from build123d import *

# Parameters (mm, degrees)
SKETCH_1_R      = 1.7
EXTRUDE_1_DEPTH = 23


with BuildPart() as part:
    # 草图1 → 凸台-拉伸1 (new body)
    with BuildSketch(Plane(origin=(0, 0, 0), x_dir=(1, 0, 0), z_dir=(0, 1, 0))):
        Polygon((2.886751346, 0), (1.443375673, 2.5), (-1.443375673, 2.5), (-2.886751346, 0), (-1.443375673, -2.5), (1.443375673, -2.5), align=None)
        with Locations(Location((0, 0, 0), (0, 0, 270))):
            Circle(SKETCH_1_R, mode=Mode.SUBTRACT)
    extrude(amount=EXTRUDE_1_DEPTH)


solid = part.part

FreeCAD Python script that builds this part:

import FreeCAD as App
import Part
import Sketcher

V = App.Vector
Q = App.Units.Quantity

doc = App.newDocument("Part")
params = doc.addObject("Spreadsheet::Sheet", "Params")
for row, (alias, value) in enumerate([
    ("sketch1_diameter", "3.4 mm"),
    ("pad1_length", "23 mm"),
], start=1):
    params.set(f"A{row}", alias)
    params.set(f"B{row}", "=" + value)
    params.setAlias(f"B{row}", alias)

body = doc.addObject("PartDesign::Body", "Body")

# Sketch on XZ plane
sketch1 = body.newObject("Sketcher::SketchObject", "Sketch")
sketch1.AttachmentSupport = (doc.getObject("XZ_Plane"), [""])
sketch1.MapMode = "FlatFace"
sketch1.addGeometry([
    Part.LineSegment(V(2.9, 0, 0), V(1.4, -2.5, 0)),  # 0
    Part.LineSegment(V(1.4, -2.5, 0), V(-1.4, -2.5, 0)),  # 1
    Part.LineSegment(V(-1.4, -2.5, 0), V(-2.9, 0, 0)),  # 2
    Part.LineSegment(V(-2.9, 0, 0), V(-1.4, 2.5, 0)),  # 3
    Part.LineSegment(V(-1.4, 2.5, 0), V(1.4, 2.5, 0)),  # 4
    Part.LineSegment(V(1.4, 2.5, 0), V(2.9, 0, 0)),  # 5
    Part.Circle(V(0, 0, 0), V(0, 0, 1), 1.7),  # 6
], False)
sketch1.addConstraint([
    Sketcher.Constraint("Coincident", 0, 2, 1, 1),
    Sketcher.Constraint("Coincident", 1, 2, 2, 1),
    Sketcher.Constraint("Coincident", 2, 2, 3, 1),
    Sketcher.Constraint("Coincident", 3, 2, 4, 1),
    Sketcher.Constraint("Coincident", 4, 2, 5, 1),
    Sketcher.Constraint("Coincident", 5, 2, 0, 1),
    Sketcher.Constraint("Horizontal", 1),
    Sketcher.Constraint("Horizontal", 4),
    Sketcher.Constraint("Coincident", 6, 3, -1, 1),
    Sketcher.Constraint("Symmetric", 0, 2, 3, 2, -1, 1),
    Sketcher.Constraint("Symmetric", 2, 2, 5, 2, -1, 1),
    Sketcher.Constraint("PointOnObject", 2, 2, -1),
    Sketcher.Constraint("Parallel", 2, 5),
    Sketcher.Constraint("Vertical", 1, 2, 3, 2),
    Sketcher.Constraint("Diameter", 6, Q("3.4 mm")),
    Sketcher.Constraint("Angle", 0, Q("-120 deg")),
    Sketcher.Constraint("DistanceY", 1, 2, 3, 2, Q("5 mm")),
    Sketcher.Constraint("DistanceX", 1, 2, 1, 1, Q("2.886751 mm")),
])
sketch1.setExpression("Constraints[14]", "Params.sketch1_diameter")
pad1 = body.newObject("PartDesign::Pad", "Pad")
pad1.Profile = sketch1
pad1.setExpression("Length", "Params.pad1_length")
pad1.Reversed = True

doc.recompute()
